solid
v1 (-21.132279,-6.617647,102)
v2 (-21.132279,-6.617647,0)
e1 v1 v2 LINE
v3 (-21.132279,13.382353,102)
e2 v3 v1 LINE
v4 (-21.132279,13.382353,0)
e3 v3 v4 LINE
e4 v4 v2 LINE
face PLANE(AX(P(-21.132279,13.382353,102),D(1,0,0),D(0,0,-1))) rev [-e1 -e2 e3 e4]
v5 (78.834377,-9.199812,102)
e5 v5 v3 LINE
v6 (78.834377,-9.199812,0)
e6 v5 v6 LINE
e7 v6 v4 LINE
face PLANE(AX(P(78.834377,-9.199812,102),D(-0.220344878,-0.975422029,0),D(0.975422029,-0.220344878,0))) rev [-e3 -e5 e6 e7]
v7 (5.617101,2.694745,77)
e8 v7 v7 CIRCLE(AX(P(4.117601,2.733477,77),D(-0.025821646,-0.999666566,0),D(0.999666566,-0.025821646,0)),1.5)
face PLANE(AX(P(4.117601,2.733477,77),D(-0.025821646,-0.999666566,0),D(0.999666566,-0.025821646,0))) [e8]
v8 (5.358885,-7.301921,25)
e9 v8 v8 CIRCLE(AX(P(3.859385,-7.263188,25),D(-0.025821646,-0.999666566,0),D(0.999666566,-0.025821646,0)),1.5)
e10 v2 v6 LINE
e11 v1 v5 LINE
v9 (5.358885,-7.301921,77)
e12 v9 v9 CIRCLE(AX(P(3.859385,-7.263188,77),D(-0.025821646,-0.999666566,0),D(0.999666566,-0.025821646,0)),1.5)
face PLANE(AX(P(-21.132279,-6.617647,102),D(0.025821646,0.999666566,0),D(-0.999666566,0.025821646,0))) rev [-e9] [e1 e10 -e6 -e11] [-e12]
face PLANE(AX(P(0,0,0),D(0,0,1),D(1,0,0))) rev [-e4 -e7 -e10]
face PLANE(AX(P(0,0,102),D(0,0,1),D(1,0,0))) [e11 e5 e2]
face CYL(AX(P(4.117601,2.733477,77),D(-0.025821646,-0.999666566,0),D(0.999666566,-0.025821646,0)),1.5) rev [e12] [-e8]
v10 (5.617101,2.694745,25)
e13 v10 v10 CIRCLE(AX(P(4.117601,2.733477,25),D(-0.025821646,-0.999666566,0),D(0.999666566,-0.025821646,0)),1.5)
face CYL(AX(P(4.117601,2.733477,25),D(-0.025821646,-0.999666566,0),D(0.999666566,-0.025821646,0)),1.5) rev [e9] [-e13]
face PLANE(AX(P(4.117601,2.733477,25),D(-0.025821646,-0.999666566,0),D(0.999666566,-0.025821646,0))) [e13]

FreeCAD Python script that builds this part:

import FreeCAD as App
import Part
import Sketcher
from FreeCAD import Vector

doc = App.newDocument("Part")
body = doc.addObject("PartDesign::Body", "Body")

# Sketch on XY plane
sketch1 = body.newObject("Sketcher::SketchObject", "Sketch")
sketch1.AttachmentSupport = (doc.getObject("XY_Plane"), [""])
sketch1.MapMode = "FlatFace"
sketch1.addGeometry(Part.LineSegment(Vector(-21, 13, 0), Vector(-21, -7, 0)), False)
sketch1.addGeometry(Part.LineSegment(Vector(-21, -7, 0), Vector(79, -9, 0)), False)
sketch1.addGeometry(Part.LineSegment(Vector(79, -9, 0), Vector(-21, 13, 0)), False)
sketch1.addConstraint(Sketcher.Constraint("Coincident", 0, 2, 1, 1))
sketch1.addConstraint(Sketcher.Constraint("Coincident", 1, 2, 2, 1))
sketch1.addConstraint(Sketcher.Constraint("Coincident", 2, 2, 0, 1))
sketch1.addConstraint(Sketcher.Constraint("Vertical", 0))
sketch1.addConstraint(Sketcher.Constraint("DistanceY", 0, 2, 0, 1, 20.0))
sketch1.addConstraint(Sketcher.Constraint("Distance", 1, 100.0))
sketch1.addConstraint(Sketcher.Constraint("DistanceX", 0, 2, -1, 1, 21.132279))
sketch1.addConstraint(Sketcher.Constraint("DistanceY", 1, 2, -1, 1, 9.199812))
sketch1.addConstraint(Sketcher.Constraint("Distance", 2, 102.485543))
pad1 = body.newObject("PartDesign::Pad", "Pad")
pad1.Profile = sketch1
pad1.Length = 102

# Sketch on an angled plane
sketch2 = body.newObject("Sketcher::SketchObject", "Sketch001")
sketch2.Placement = App.Placement(Vector(-0.184912, -7.158723, 0), App.Rotation(Vector(0.999666566, -0.025821646, 0), Vector(0, 0, 1.000000001), Vector(-0.025821646, -0.999666566, 0), "ZXY"))
sketch2.addGeometry(Part.Circle(Vector(4, 25, 0), Vector(0, 0, 1), 1.5), False)
sketch2.addGeometry(Part.Circle(Vector(4, 77, 0), Vector(0, 0, 1), 1.5), False)
sketch2.addConstraint(Sketcher.Constraint("Equal", 0, 1))
sketch2.addConstraint(Sketcher.Constraint("Vertical", 0, 3, 1, 3))
sketch2.addConstraint(Sketcher.Constraint("Diameter", 0, 3.0))
sketch2.addConstraint(Sketcher.Constraint("DistanceY", -1, 1, 0, 3, 25.0))
sketch2.addConstraint(Sketcher.Constraint("DistanceY", -1, 1, 1, 3, 77.0))
sketch2.addConstraint(Sketcher.Constraint("DistanceX", -1, 1, 0, 3, 4.045645))
pocket1 = body.newObject("PartDesign::Pocket", "Pocket")
pocket1.Profile = sketch2
pocket1.Length = 10

doc.recompute()
